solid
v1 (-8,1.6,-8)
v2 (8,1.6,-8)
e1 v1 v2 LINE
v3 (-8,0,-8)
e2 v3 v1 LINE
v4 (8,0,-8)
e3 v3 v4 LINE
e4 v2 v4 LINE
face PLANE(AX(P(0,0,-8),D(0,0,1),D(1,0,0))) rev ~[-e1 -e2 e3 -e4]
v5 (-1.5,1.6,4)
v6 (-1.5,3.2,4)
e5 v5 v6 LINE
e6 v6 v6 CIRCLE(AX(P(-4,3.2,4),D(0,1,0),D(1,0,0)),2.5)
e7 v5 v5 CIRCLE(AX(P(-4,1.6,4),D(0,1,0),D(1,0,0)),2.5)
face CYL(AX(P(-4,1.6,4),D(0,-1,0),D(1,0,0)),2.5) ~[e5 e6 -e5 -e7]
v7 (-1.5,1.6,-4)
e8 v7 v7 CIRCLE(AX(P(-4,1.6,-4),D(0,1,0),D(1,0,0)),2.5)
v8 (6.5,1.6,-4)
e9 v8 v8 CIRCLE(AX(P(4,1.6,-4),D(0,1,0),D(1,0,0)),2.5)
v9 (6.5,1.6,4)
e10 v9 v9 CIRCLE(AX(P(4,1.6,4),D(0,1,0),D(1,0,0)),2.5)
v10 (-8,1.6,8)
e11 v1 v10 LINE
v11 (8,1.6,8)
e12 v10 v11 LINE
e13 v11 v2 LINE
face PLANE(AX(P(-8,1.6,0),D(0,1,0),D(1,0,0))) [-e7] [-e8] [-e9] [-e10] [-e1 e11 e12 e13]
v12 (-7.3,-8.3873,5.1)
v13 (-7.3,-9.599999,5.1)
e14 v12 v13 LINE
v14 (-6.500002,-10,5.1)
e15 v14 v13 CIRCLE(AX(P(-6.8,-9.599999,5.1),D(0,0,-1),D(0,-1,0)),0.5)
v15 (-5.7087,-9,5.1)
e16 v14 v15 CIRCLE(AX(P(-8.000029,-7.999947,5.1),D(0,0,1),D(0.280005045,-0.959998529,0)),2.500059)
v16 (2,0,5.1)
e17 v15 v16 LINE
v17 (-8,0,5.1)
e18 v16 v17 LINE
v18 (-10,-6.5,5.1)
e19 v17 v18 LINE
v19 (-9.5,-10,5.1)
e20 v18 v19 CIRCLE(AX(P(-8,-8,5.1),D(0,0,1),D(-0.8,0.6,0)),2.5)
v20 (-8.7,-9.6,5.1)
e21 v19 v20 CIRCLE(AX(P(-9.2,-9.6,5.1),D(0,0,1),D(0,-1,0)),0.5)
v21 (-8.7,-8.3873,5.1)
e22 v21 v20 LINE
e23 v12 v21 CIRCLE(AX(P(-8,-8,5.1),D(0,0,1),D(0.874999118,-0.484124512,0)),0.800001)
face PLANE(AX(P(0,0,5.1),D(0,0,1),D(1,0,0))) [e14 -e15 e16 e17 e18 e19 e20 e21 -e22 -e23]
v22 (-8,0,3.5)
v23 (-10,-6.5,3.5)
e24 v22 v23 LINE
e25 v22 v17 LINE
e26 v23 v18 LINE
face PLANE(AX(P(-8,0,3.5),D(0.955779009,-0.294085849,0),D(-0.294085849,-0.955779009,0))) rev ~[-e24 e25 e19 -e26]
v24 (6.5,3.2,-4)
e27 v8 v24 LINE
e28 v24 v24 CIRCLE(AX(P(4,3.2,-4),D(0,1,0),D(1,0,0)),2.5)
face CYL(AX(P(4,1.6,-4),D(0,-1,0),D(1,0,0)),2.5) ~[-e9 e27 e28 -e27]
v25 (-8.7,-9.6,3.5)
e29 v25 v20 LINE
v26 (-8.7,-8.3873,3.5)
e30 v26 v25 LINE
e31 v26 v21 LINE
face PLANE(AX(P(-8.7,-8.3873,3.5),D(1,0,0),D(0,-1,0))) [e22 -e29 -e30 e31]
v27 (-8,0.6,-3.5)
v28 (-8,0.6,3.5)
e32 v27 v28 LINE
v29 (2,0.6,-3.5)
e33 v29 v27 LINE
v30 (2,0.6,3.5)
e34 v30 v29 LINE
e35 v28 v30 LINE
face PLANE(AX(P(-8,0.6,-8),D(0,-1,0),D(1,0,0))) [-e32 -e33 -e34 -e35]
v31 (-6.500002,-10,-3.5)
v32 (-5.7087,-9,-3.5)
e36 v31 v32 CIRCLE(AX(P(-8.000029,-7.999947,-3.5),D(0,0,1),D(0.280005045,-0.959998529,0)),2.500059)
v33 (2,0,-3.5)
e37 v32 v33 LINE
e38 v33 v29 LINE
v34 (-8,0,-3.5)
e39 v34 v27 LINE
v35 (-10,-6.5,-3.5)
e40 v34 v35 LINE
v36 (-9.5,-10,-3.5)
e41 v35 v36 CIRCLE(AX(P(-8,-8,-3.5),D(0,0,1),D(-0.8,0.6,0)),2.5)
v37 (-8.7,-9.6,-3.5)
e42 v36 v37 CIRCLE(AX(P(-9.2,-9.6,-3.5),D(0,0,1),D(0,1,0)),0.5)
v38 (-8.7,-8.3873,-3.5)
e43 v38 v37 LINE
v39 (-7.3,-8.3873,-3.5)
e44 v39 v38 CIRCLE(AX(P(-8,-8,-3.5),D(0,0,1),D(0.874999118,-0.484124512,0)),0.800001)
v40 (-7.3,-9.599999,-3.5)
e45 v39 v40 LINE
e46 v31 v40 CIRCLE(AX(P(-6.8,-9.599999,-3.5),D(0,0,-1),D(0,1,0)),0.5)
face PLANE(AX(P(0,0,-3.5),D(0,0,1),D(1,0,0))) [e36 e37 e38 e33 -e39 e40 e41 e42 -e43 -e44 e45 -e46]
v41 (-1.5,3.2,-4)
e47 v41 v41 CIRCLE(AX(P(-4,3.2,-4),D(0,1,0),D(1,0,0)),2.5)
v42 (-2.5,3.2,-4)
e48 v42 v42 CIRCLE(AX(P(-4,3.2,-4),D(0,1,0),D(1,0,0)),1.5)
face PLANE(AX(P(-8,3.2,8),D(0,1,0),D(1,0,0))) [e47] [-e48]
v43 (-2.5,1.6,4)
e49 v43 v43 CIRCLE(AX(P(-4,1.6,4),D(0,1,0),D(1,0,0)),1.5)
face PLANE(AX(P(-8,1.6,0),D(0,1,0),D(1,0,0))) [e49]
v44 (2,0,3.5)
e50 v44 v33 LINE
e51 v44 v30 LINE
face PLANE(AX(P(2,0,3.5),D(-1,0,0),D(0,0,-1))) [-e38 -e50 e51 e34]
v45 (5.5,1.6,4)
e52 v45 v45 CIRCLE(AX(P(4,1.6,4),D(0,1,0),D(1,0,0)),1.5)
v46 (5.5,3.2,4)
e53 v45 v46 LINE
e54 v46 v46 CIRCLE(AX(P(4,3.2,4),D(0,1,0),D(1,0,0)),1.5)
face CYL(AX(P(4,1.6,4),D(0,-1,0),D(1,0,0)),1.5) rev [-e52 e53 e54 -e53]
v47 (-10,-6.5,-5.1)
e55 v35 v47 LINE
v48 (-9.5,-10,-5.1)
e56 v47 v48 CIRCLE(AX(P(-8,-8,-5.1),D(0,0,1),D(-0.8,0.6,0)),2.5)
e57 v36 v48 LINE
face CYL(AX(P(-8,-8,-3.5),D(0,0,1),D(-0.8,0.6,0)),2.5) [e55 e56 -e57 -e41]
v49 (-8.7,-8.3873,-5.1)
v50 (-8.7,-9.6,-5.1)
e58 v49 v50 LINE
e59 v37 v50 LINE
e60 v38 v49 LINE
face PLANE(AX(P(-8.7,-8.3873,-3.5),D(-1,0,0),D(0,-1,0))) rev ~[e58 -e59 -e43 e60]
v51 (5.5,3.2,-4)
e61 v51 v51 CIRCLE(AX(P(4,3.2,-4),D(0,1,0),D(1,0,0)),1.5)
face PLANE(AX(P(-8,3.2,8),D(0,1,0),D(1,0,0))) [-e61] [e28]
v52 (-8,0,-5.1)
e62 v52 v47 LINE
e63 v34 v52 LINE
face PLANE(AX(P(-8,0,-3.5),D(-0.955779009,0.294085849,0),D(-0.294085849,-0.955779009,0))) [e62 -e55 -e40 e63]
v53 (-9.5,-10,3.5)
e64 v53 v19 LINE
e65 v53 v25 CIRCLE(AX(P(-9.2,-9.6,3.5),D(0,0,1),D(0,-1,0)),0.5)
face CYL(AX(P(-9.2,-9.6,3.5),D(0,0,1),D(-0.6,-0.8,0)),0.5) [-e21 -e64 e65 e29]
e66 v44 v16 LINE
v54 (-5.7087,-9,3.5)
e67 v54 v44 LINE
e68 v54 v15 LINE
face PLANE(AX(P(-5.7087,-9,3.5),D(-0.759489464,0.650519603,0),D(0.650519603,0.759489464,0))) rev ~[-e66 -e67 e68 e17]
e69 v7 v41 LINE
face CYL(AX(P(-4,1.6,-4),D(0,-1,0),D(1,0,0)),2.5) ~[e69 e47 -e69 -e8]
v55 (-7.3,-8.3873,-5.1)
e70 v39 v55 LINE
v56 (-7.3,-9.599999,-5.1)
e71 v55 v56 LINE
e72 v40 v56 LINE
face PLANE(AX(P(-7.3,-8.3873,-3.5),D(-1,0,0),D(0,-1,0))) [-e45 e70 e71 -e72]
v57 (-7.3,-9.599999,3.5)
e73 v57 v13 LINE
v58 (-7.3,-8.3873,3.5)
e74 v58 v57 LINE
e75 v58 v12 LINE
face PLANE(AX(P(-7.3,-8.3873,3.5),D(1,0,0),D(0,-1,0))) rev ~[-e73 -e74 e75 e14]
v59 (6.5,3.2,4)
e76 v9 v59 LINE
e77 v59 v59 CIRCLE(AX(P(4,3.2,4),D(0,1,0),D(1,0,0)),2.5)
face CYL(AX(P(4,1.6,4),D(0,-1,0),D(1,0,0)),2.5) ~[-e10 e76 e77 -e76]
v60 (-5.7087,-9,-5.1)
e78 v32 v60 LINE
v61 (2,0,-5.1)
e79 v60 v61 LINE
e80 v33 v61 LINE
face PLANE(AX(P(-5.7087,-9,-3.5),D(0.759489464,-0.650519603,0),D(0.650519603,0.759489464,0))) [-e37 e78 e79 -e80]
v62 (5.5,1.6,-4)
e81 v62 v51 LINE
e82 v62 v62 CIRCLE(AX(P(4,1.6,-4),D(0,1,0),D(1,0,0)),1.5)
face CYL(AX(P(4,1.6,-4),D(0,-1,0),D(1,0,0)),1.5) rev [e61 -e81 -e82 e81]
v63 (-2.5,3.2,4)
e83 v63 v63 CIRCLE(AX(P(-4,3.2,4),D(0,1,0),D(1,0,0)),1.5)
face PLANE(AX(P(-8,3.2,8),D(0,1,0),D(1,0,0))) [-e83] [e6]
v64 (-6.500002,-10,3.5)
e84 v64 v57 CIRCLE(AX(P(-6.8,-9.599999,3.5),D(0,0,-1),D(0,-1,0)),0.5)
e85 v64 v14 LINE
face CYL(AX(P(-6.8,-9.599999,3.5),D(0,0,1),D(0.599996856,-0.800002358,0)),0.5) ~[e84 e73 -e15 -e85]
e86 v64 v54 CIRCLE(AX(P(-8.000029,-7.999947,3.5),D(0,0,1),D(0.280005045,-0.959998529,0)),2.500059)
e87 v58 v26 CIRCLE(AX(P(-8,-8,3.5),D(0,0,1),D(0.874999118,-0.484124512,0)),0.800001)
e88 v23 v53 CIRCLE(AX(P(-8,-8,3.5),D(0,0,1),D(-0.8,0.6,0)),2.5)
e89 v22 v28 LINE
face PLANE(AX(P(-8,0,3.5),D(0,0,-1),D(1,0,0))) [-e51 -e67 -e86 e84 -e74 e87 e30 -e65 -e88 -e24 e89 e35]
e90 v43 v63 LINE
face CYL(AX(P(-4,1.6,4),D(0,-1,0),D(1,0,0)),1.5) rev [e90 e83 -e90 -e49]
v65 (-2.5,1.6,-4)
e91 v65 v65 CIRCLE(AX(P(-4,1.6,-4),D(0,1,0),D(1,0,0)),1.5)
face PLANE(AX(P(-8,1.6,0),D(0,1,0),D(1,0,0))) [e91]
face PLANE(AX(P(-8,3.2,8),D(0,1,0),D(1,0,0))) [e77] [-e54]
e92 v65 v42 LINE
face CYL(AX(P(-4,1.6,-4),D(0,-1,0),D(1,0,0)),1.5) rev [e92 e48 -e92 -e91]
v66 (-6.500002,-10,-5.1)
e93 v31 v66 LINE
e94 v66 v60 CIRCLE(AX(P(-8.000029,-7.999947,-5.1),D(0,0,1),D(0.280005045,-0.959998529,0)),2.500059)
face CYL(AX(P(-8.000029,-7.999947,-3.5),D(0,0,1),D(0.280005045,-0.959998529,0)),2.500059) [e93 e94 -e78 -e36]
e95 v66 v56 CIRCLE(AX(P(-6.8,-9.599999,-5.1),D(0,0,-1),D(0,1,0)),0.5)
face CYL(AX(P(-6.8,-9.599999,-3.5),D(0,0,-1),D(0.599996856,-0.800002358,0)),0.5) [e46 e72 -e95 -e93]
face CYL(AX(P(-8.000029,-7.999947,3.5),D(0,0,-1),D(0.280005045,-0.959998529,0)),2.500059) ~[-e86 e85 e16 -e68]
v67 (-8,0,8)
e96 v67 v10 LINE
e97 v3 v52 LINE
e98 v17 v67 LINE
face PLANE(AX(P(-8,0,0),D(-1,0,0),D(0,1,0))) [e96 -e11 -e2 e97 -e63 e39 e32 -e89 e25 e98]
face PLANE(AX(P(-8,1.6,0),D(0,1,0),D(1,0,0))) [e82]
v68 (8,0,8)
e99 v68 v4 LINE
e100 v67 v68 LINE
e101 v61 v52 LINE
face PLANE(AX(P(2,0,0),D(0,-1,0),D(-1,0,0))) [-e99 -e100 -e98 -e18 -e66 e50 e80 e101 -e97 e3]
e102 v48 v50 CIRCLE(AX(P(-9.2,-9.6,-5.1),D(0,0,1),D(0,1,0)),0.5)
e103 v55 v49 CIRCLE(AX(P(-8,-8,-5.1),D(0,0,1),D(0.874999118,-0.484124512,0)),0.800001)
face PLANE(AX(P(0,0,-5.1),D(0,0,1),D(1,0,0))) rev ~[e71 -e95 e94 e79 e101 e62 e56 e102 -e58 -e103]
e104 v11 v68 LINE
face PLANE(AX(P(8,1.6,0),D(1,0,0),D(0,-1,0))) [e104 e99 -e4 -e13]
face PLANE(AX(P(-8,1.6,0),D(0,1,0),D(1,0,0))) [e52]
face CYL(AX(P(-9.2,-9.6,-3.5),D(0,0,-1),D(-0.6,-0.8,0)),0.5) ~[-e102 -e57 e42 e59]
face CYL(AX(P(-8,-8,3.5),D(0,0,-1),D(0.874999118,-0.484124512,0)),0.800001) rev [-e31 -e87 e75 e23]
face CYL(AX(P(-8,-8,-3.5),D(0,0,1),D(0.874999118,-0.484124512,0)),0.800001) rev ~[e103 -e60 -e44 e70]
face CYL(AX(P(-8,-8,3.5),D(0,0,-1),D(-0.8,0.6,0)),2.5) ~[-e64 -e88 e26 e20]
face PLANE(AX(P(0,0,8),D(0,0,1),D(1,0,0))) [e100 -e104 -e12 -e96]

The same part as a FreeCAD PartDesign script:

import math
import FreeCAD as App
import Part
import Sketcher

V = App.Vector


def edges_at(feature, points):
    """Names of the edges that pass closest to the given points."""
    edges = feature.Shape.Edges
    near = lambda p: min(range(len(edges)), key=lambda i: edges[i].distToShape(Part.Vertex(*p))[0])
    return sorted({f"Edge{near(p) + 1}" for p in points})

doc = App.newDocument("Part")
params = doc.addObject("Spreadsheet::Sheet", "Params")
for row, (alias, value) in enumerate([
    ("sketch1_width", "16 mm"),
    ("sketch1_height", "1.6 mm"),
    ("pad1_length", "16 mm"),
    ("sketch2_radius", "2.5 mm"),
    ("sketch2_radius2", "0.8 mm"),
    ("sketch2_width", "10 mm"),
    ("pad2_length", "1.6 mm"),
    ("sketch3_radius", "2.5 mm"),
    ("sketch3_radius2", "0.8 mm"),
    ("sketch3_width", "10 mm"),
    ("pad3_length", "1.6 mm"),
    ("fillet_radius", "0.5 mm"),
    ("sketch4_diameter", "5 mm"),
    ("sketch4_diameter2", "3 mm"),
    ("pad4_length", "1.6 mm"),
    ("sketch5_width", "10 mm"),
    ("sketch5_height", "7 mm"),
    ("pocket1_length", "0.6 mm"),
], start=1):
    params.set(f"A{row}", alias)
    params.set(f"B{row}", "=" + value)
    params.setAlias(f"B{row}", alias)

body = doc.addObject("PartDesign::Body", "Body")

# Sketch on XY plane
sketch1 = body.newObject("Sketcher::SketchObject", "Sketch")
sketch1.AttachmentSupport = (doc.getObject("XY_Plane"), [""])
sketch1.MapMode = "FlatFace"
sketch1.addGeometry([
    Part.LineSegment(V(8, 1.6, 0), V(-8, 1.6, 0)),
    Part.LineSegment(V(-8, 1.6, 0), V(-8, 0, 0)),
    Part.LineSegment(V(-8, 0, 0), V(8, 0, 0)),
    Part.LineSegment(V(8, 0, 0), V(8, 1.6, 0)),
], False)
sketch1.addConstraint([
    Sketcher.Constraint("Coincident", 0, 2, 1, 1),
    Sketcher.Constraint("Coincident", 1, 2, 2, 1),
    Sketcher.Constraint("Coincident", 2, 2, 3, 1),
    Sketcher.Constraint("Coincident", 3, 2, 0, 1),
    Sketcher.Constraint("Horizontal", 0),
    Sketcher.Constraint("Vertical", 1),
    Sketcher.Constraint("Horizontal", 2),
    Sketcher.Constraint("Vertical", 3),
    Sketcher.Constraint("Symmetric", 1, 2, 2, 2, -1, 1),
    Sketcher.Constraint("DistanceX", 0, 2, 0, 1, 16.0),
    Sketcher.Constraint("DistanceY", 1, 2, 1, 1, 1.6),
])
sketch1.setExpression("Constraints[9]", "Params.sketch1_width")
sketch1.setExpression("Constraints[10]", "Params.sketch1_height")
pad1 = body.newObject("PartDesign::Pad", "Pad")
pad1.Profile = sketch1
pad1.setExpression("Length", "Params.pad1_length")
pad1.Midplane = True

# Sketch on XY plane
sketch2 = body.newObject("Sketcher::SketchObject", "Sketch001")
sketch2.AttachmentSupport = (doc.getObject("XY_Plane"), [""])
sketch2.MapMode = "FlatFace"
sketch2.AttachmentOffset = App.Placement(V(0, 0, 3.5), App.Rotation())
sketch2.addGeometry([
    Part.LineSegment(V(2, 0, 0), V(-8, 0, 0)),  # 0
    Part.LineSegment(V(-8, 0, 0), V(-10, -6.5, 0)),  # 1
    Part.ArcOfCircle(Part.Circle(V(-8, -8, 0), V(0, 0, 1), 2.5), math.radians(143), math.radians(254)),  # 2
    Part.LineSegment(V(-8.7, -10.4, 0), V(-8.7, -8.4, 0)),  # 3
    Part.ArcOfCircle(Part.Circle(V(-8, -8, 0), V(0, 0, 1), 0.8), math.radians(-29), math.radians(209)),  # 4
    Part.LineSegment(V(-7.3, -8.4, 0), V(-7.3, -10.4, 0)),  # 5
    Part.ArcOfCircle(Part.Circle(V(-8, -8, 0), V(0, 0, 1), 2.5), math.radians(-74), math.radians(-24)),  # 6
    Part.LineSegment(V(-5.7, -9, 0), V(2, 0, 0)),  # 7
], False)
sketch2.addConstraint([
    Sketcher.Constraint("Coincident", 0, 2, 1, 1),
    Sketcher.Constraint("Coincident", 1, 2, 2, 1),
    Sketcher.Constraint("Coincident", 2, 2, 3, 1),
    Sketcher.Constraint("Coincident", 3, 2, 4, 2),
    Sketcher.Constraint("Coincident", 4, 1, 5, 1),
    Sketcher.Constraint("Coincident", 5, 2, 6, 1),
    Sketcher.Constraint("Coincident", 6, 2, 7, 1),
    Sketcher.Constraint("Coincident", 7, 2, 0, 1),
    Sketcher.Constraint("Horizontal", 0),
    Sketcher.Constraint("Vertical", 3),
    Sketcher.Constraint("Vertical", 5),
    Sketcher.Constraint("Coincident", 4, 3, 2, 3),
    Sketcher.Constraint("Coincident", 6, 3, 2, 3),
    Sketcher.Constraint("Equal", 2, 6),
    Sketcher.Constraint("PointOnObject", 0, 2, -1),
    Sketcher.Constraint("Horizontal", 3, 2, 4, 1),
    Sketcher.Constraint("Vertical", 6, 3, 0, 2),
    Sketcher.Constraint("Radius", 2, 2.5),
    Sketcher.Constraint("Radius", 4, 0.8),
    Sketcher.Constraint("DistanceX", 0, 2, 0, 1, 10.0),
    Sketcher.Constraint("DistanceX", 2, 3, -1, 1, 8.0),
    Sketcher.Constraint("DistanceY", 2, 3, -1, 1, 8.0),
    Sketcher.Constraint("DistanceX", 1, 2, -1, 1, 10.0),
    Sketcher.Constraint("DistanceY", 6, 2, -1, 1, 9.0),
    Sketcher.Constraint("DistanceX", 2, 2, -1, 1, 8.7),
])
sketch2.setExpression("Constraints[17]", "Params.sketch2_radius")
sketch2.setExpression("Constraints[18]", "Params.sketch2_radius2")
sketch2.setExpression("Constraints[19]", "Params.sketch2_width")
pad2 = body.newObject("PartDesign::Pad", "Pad001")
pad2.Profile = sketch2
pad2.setExpression("Length", "Params.pad2_length")

# Sketch on XY plane
sketch3 = body.newObject("Sketcher::SketchObject", "Sketch002")
sketch3.AttachmentSupport = (doc.getObject("XY_Plane"), [""])
sketch3.MapMode = "FlatFace"
sketch3.AttachmentOffset = App.Placement(V(0, 0, -3.5), App.Rotation())
sketch3.addGeometry([
    Part.LineSegment(V(2, 0, 0), V(-8, 0, 0)),  # 0
    Part.LineSegment(V(-8, 0, 0), V(-10, -6.5, 0)),  # 1
    Part.ArcOfCircle(Part.Circle(V(-8, -8, 0), V(0, 0, 1), 2.5), math.radians(143), math.radians(254)),  # 2
    Part.LineSegment(V(-8.7, -10.4, 0), V(-8.7, -8.4, 0)),  # 3
    Part.ArcOfCircle(Part.Circle(V(-8, -8, 0), V(0, 0, 1), 0.8), math.radians(-29), math.radians(209)),  # 4
    Part.LineSegment(V(-7.3, -8.4, 0), V(-7.3, -10.4, 0)),  # 5
    Part.ArcOfCircle(Part.Circle(V(-8, -8, 0), V(0, 0, 1), 2.5), math.radians(-74), math.radians(-24)),  # 6
    Part.LineSegment(V(-5.7, -9, 0), V(2, 0, 0)),  # 7
], False)
sketch3.addConstraint([
    Sketcher.Constraint("Coincident", 0, 2, 1, 1),
    Sketcher.Constraint("Coincident", 1, 2, 2, 1),
    Sketcher.Constraint("Coincident", 2, 2, 3, 1),
    Sketcher.Constraint("Coincident", 3, 2, 4, 2),
    Sketcher.Constraint("Coincident", 4, 1, 5, 1),
    Sketcher.Constraint("Coincident", 5, 2, 6, 1),
    Sketcher.Constraint("Coincident", 6, 2, 7, 1),
    Sketcher.Constraint("Coincident", 7, 2, 0, 1),
    Sketcher.Constraint("Horizontal", 0),
    Sketcher.Constraint("Vertical", 3),
    Sketcher.Constraint("Vertical", 5),
    Sketcher.Constraint("Coincident", 4, 3, 2, 3),
    Sketcher.Constraint("Coincident", 6, 3, 2, 3),
    Sketcher.Constraint("Equal", 2, 6),
    Sketcher.Constraint("PointOnObject", 0, 2, -1),
    Sketcher.Constraint("Horizontal", 3, 2, 4, 1),
    Sketcher.Constraint("Vertical", 6, 3, 0, 2),
    Sketcher.Constraint("Radius", 2, 2.5),
    Sketcher.Constraint("Radius", 4, 0.8),
    Sketcher.Constraint("DistanceX", 0, 2, 0, 1, 10.0),
    Sketcher.Constraint("DistanceX", 2, 3, -1, 1, 8.0),
    Sketcher.Constraint("DistanceY", 2, 3, -1, 1, 8.0),
    Sketcher.Constraint("DistanceX", 1, 2, -1, 1, 10.0),
    Sketcher.Constraint("DistanceY", 6, 2, -1, 1, 9.0),
    Sketcher.Constraint("DistanceX", 2, 2, -1, 1, 8.7),
])
sketch3.setExpression("Constraints[17]", "Params.sketch3_radius")
sketch3.setExpression("Constraints[18]", "Params.sketch3_radius2")
sketch3.setExpression("Constraints[19]", "Params.sketch3_width")
pad3 = body.newObject("PartDesign::Pad", "Pad002")
pad3.Profile = sketch3
pad3.setExpression("Length", "Params.pad3_length")
pad3.Reversed = True
doc.recompute()

fillet = body.newObject("PartDesign::Fillet", "Fillet")
fillet.Base = (pad3, edges_at(pad3, [
    (-8.7, -10.4, 4.3),
    (-7.3, -10.4, 4.3),
    (-7.3, -10.4, -4.3),
    (-8.7, -10.4, -4.3),
]))
fillet.setExpression("Radius", "Params.fillet_radius")

# Sketch on XZ plane
sketch4 = body.newObject("Sketcher::SketchObject", "Sketch003")
sketch4.AttachmentSupport = (doc.getObject("XZ_Plane"), [""])
sketch4.MapMode = "FlatFace"
sketch4.AttachmentOffset = App.Placement(V(0, 0, -1.6), App.Rotation())
sketch4.addGeometry([
    Part.Circle(V(-4, -4, 0), V(0, 0, 1), 2.5),  # 0
    Part.Circle(V(-4, -4, 0), V(0, 0, 1), 1.5),  # 1
    Part.Circle(V(4, -4, 0), V(0, 0, 1), 2.5),  # 2
    Part.Circle(V(4, -4, 0), V(0, 0, 1), 1.5),  # 3
    Part.Circle(V(4, 4, 0), V(0, 0, 1), 2.5),  # 4
    Part.Circle(V(4, 4, 0), V(0, 0, 1), 1.5),  # 5
    Part.Circle(V(-4, 4, 0), V(0, 0, 1), 2.5),  # 6
    Part.Circle(V(-4, 4, 0), V(0, 0, 1), 1.5),  # 7
], False)
sketch4.addConstraint([
    Sketcher.Constraint("Coincident", 1, 3, 0, 3),
    Sketcher.Constraint("Coincident", 3, 3, 2, 3),
    Sketcher.Constraint("Coincident", 5, 3, 4, 3),
    Sketcher.Constraint("Coincident", 7, 3, 6, 3),
    Sketcher.Constraint("Equal", 0, 2),
    Sketcher.Constraint("Equal", 1, 3),
    Sketcher.Constraint("Equal", 2, 4),
    Sketcher.Constraint("Equal", 3, 5),
    Sketcher.Constraint("Equal", 4, 6),
    Sketcher.Constraint("Equal", 5, 7),
    Sketcher.Constraint("Symmetric", 0, 3, 4, 3, -1, 1),
    Sketcher.Constraint("Symmetric", 2, 3, 6, 3, -1, 1),
    Sketcher.Constraint("Symmetric", 0, 3, 2, 3, -2),
    Sketcher.Constraint("Diameter", 0, 5.0),
    Sketcher.Constraint("Diameter", 1, 3.0),
    Sketcher.Constraint("DistanceX", 0, 3, -1, 1, 4.0),
    Sketcher.Constraint("DistanceY", 0, 3, -1, 1, 4.0),
])
sketch4.setExpression("Constraints[13]", "Params.sketch4_diameter")
sketch4.setExpression("Constraints[14]", "Params.sketch4_diameter2")
pad4 = body.newObject("PartDesign::Pad", "Pad003")
pad4.Profile = sketch4
pad4.setExpression("Length", "Params.pad4_length")
pad4.Reversed = True

# Sketch on XZ plane
sketch5 = body.newObject("Sketcher::SketchObject", "Sketch004")
sketch5.AttachmentSupport = (doc.getObject("XZ_Plane"), [""])
sketch5.MapMode = "FlatFace"
sketch5.addGeometry([
    Part.LineSegment(V(2, 4, 0), V(-8, 4, 0)),
    Part.LineSegment(V(-8, 4, 0), V(-8, -4, 0)),
    Part.LineSegment(V(-8, -4, 0), V(2, -4, 0)),
    Part.LineSegment(V(2, -4, 0), V(2, 4, 0)),
], False)
sketch5.addConstraint([
    Sketcher.Constraint("Coincident", 0, 2, 1, 1),
    Sketcher.Constraint("Coincident", 1, 2, 2, 1),
    Sketcher.Constraint("Coincident", 2, 2, 3, 1),
    Sketcher.Constraint("Coincident", 3, 2, 0, 1),
    Sketcher.Constraint("Horizontal", 0),
    Sketcher.Constraint("Vertical", 1),
    Sketcher.Constraint("Horizontal", 2),
    Sketcher.Constraint("Vertical", 3),
    Sketcher.Constraint("DistanceX", 0, 2, 0, 1, 10.0),
    Sketcher.Constraint("DistanceY", 1, 2, 1, 1, 7.0),
    Sketcher.Constraint("DistanceX", 0, 2, -1, 1, 8.0),
    Sketcher.Constraint("DistanceY", -1, 1, 0, 2, 3.5),
])
sketch5.setExpression("Constraints[8]", "Params.sketch5_width")
sketch5.setExpression("Constraints[9]", "Params.sketch5_height")
pocket1 = body.newObject("PartDesign::Pocket", "Pocket")
pocket1.Profile = sketch5
pocket1.setExpression("Length", "Params.pocket1_length")

doc.recompute()
